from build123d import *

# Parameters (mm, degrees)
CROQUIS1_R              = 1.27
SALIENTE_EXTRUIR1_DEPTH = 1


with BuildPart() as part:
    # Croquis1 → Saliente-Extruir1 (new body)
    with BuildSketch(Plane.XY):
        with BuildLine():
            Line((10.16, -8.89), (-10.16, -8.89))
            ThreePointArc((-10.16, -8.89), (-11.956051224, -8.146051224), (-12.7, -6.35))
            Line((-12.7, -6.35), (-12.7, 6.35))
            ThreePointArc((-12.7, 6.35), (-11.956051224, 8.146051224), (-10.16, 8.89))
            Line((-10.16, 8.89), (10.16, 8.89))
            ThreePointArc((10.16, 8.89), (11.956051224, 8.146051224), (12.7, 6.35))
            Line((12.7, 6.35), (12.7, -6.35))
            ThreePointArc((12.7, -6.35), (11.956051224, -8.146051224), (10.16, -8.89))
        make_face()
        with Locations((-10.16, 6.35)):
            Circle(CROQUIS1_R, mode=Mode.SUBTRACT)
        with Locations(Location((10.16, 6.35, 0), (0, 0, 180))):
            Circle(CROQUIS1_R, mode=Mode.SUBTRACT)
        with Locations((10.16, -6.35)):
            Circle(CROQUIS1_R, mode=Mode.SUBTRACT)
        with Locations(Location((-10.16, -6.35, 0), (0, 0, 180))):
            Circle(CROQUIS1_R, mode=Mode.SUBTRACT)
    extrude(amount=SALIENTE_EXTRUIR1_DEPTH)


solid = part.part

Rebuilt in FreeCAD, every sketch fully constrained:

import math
import FreeCAD as App
import Part
import Sketcher
from FreeCAD import Vector
Q = App.Units.Quantity

doc = App.newDocument("Part")
body = doc.addObject("PartDesign::Body", "Body")

# Sketch on XY plane
sketch1 = doc.addObject("Sketcher::SketchObject", "Sketch")
body.addObject(sketch1)
sketch1.AttachmentSupport = (doc.XY_Plane, [""])
sketch1.MapMode = "FlatFace"
sketch1.addGeometry([
    Part.LineSegment(Vector(-10.16, -8.89, 0), Vector(10.16, -8.89, 0)),  # 0
    Part.ArcOfCircle(Part.Circle(Vector(10.16, -6.35, 0), Vector(0, 0, 1), 2.54), math.radians(-90), math.radians(0)),  # 1
    Part.LineSegment(Vector(12.7, -6.35, 0), Vector(12.7, 6.35, 0)),  # 2
    Part.ArcOfCircle(Part.Circle(Vector(10.16, 6.35, 0), Vector(0, 0, 1), 2.54), math.radians(0), math.radians(90)),  # 3
    Part.LineSegment(Vector(10.16, 8.89, 0), Vector(-10.16, 8.89, 0)),  # 4
    Part.ArcOfCircle(Part.Circle(Vector(-10.16, 6.35, 0), Vector(0, 0, 1), 2.54), math.radians(90), math.radians(180)),  # 5
    Part.LineSegment(Vector(-12.7, 6.35, 0), Vector(-12.7, -6.35, 0)),  # 6
    Part.ArcOfCircle(Part.Circle(Vector(-10.16, -6.35, 0), Vector(0, 0, 1), 2.54), math.radians(-180), math.radians(-90)),  # 7
    Part.Circle(Vector(10.16, -6.35, 0), Vector(0, 0, 1), 1.27),  # 8
    Part.Circle(Vector(-10.16, -6.35, 0), Vector(0, 0, 1), 1.27),  # 9
    Part.Circle(Vector(10.16, 6.35, 0), Vector(0, 0, 1), 1.27),  # 10
    Part.Circle(Vector(-10.16, 6.35, 0), Vector(0, 0, 1), 1.27),  # 11
], False)
sketch1.addConstraint([
    Sketcher.Constraint("Tangent", 0, 2, 1, 1),
    Sketcher.Constraint("Tangent", 1, 2, 2, 1),
    Sketcher.Constraint("Tangent", 2, 2, 3, 1),
    Sketcher.Constraint("Tangent", 3, 2, 4, 1),
    Sketcher.Constraint("Tangent", 4, 2, 5, 1),
    Sketcher.Constraint("Tangent", 5, 2, 6, 1),
    Sketcher.Constraint("Tangent", 6, 2, 7, 1),
    Sketcher.Constraint("Tangent", 7, 2, 0, 1),
    Sketcher.Constraint("Horizontal", 0),
    Sketcher.Constraint("Vertical", 2),
    Sketcher.Constraint("Horizontal", 4),
    Sketcher.Constraint("Vertical", 6),
    Sketcher.Constraint("Coincident", 8, 3, 1, 3),
    Sketcher.Constraint("Coincident", 9, 3, 7, 3),
    Sketcher.Constraint("Coincident", 10, 3, 3, 3),
    Sketcher.Constraint("Coincident", 11, 3, 5, 3),
    Sketcher.Constraint("Equal", 1, 3),
    Sketcher.Constraint("Equal", 3, 5),
    Sketcher.Constraint("Equal", 5, 7),
    Sketcher.Constraint("Equal", 8, 9),
    Sketcher.Constraint("Equal", 9, 10),
    Sketcher.Constraint("Equal", 10, 11),
    Sketcher.Constraint("Symmetric", 1, 3, 5, 3, -1, 1),
    Sketcher.Constraint("Diameter", 8, Q("0.1 in")),
    Sketcher.Constraint("Radius", 1, Q("0.1 in")),
    Sketcher.Constraint("DistanceX", 0, 1, 0, 2, Q("0.8 in")),
    Sketcher.Constraint("DistanceY", 2, 1, 2, 2, Q("0.5 in")),
])
pad1 = doc.addObject("PartDesign::Pad", "Pad")
body.addObject(pad1)
pad1.Profile = sketch1
pad1.Length = 1

doc.recompute()
